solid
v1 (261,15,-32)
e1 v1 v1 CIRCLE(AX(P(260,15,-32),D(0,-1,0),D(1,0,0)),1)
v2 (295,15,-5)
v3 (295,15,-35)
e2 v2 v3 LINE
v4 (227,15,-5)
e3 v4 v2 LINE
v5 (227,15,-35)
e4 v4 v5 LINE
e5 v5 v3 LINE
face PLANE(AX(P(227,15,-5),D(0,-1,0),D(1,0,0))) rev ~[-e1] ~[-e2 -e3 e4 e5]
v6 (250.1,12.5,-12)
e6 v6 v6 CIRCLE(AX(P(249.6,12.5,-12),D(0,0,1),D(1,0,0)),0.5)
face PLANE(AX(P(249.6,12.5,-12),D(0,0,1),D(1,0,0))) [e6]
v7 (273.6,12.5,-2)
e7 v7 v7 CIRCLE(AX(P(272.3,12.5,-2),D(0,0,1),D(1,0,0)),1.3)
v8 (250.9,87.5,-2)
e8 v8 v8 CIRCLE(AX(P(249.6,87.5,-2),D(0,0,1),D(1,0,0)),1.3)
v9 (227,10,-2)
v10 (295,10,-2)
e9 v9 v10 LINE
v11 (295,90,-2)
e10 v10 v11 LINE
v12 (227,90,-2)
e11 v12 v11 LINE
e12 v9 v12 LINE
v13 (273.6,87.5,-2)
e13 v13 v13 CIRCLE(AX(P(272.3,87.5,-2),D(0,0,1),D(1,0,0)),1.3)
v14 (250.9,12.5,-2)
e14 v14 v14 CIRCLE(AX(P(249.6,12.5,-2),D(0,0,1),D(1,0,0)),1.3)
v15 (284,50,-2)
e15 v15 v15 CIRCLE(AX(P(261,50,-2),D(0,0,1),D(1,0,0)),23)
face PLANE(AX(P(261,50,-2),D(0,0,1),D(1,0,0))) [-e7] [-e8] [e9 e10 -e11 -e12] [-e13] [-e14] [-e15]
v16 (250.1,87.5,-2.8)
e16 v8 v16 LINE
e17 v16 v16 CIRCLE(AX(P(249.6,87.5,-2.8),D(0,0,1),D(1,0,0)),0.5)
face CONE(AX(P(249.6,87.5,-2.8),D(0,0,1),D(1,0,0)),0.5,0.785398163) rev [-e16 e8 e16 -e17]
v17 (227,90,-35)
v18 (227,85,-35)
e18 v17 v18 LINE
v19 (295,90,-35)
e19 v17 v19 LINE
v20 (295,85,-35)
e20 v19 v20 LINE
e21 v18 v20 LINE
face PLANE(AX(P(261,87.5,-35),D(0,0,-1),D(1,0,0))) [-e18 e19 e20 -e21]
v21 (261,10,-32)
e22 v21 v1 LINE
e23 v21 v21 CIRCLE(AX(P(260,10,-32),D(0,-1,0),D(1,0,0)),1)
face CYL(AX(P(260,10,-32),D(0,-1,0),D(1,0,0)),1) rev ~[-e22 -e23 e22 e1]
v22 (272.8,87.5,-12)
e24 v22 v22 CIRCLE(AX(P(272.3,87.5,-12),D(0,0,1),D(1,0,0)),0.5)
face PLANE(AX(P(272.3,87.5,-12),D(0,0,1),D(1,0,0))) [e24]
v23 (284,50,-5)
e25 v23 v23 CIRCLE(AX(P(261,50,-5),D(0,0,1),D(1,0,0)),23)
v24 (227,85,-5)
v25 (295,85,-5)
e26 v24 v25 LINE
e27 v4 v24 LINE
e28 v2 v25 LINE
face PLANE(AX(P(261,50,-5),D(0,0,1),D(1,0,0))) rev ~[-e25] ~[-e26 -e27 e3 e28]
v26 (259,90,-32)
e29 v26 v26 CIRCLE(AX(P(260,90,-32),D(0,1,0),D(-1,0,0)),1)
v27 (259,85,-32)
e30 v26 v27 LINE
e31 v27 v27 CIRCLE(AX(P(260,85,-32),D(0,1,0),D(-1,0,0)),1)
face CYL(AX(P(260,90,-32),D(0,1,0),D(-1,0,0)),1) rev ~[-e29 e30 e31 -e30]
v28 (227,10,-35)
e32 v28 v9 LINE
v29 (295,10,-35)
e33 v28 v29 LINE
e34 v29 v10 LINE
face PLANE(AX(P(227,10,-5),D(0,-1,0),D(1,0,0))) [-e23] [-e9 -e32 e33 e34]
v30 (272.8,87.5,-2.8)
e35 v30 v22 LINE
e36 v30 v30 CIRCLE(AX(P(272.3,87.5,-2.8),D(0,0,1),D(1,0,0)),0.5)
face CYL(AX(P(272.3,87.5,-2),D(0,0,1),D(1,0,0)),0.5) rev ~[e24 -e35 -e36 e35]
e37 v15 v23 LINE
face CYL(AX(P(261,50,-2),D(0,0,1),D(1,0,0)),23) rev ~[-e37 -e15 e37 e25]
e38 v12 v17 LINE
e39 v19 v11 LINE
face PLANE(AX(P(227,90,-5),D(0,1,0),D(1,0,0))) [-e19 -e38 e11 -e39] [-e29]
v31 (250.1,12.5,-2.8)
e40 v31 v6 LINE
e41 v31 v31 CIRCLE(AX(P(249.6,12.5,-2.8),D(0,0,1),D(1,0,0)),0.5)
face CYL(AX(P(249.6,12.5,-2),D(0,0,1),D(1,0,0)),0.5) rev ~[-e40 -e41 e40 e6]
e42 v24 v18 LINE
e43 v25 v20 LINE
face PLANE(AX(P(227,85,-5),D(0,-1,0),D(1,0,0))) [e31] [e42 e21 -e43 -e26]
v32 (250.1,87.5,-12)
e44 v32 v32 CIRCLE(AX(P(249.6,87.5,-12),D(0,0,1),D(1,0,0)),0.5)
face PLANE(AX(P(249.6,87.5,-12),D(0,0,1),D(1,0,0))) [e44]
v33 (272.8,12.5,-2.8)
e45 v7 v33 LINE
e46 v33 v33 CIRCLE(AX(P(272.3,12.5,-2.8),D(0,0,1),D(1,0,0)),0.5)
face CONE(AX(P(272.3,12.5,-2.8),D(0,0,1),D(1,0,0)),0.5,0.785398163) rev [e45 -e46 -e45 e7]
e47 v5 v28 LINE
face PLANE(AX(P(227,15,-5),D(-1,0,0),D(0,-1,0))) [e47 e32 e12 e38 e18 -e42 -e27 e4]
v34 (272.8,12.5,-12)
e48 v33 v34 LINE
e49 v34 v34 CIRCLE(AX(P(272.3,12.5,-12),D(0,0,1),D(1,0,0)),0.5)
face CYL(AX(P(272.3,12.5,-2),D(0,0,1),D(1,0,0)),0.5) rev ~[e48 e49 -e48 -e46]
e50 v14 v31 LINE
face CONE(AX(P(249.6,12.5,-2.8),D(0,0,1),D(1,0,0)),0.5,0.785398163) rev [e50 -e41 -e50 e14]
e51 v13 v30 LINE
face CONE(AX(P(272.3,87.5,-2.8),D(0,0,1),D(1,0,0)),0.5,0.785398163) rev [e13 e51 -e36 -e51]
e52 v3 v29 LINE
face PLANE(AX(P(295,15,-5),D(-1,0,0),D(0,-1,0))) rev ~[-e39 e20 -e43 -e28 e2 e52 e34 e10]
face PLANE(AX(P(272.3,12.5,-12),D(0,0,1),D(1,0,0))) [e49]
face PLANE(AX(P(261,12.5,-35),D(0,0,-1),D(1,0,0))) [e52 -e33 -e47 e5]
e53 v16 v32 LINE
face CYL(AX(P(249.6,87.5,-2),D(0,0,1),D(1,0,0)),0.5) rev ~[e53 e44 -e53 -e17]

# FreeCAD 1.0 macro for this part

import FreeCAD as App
import Part
import Sketcher
from FreeCAD import Vector


def edges_at(feature, points):
    """Names of the edges that pass closest to the given points."""
    edges = feature.Shape.Edges
    near = lambda p: min(range(len(edges)), key=lambda i: edges[i].distToShape(Part.Vertex(*p))[0])
    return sorted({f"Edge{near(p) + 1}" for p in points})


def add_polygon(sketch, points):
    """Adds a closed chain of lines whose ends are joined by coincident constraints."""
    first, n = sketch.GeometryCount, len(points)
    for a, b in zip(points, points[1:] + points[:1]):
        sketch.addGeometry(Part.LineSegment(App.Vector(*a, 0), App.Vector(*b, 0)), False)
    for i in range(n):
        sketch.addConstraint(Sketcher.Constraint("Coincident", first + i, 2, first + (i + 1) % n, 1))

doc = App.newDocument("Part")
body = doc.addObject("PartDesign::Body", "Body")

# Sketch on XY plane
sketch1 = body.newObject("Sketcher::SketchObject", "Sketch")
sketch1.AttachmentSupport = (doc.getObject("XY_Plane"), [""])
sketch1.MapMode = "FlatFace"
add_polygon(sketch1, [(0, 80), (0, 0), (68, 0), (68, 80)])  # lines 0-3
sketch1.addConstraint([
    Sketcher.Constraint("Vertical", 0),
    Sketcher.Constraint("Horizontal", 1),
    Sketcher.Constraint("Vertical", 2),
    Sketcher.Constraint("Horizontal", 3),
    Sketcher.Constraint("Coincident", 0, 2, -1, 1),
    Sketcher.Constraint("DistanceX", 1, 1, 1, 2, 68.0),
    Sketcher.Constraint("DistanceY", 0, 2, 0, 1, 80.0),
])
pad1 = body.newObject("PartDesign::Pad", "Pad")
pad1.Profile = sketch1
pad1.Length = 3

# Sketch on XY plane
sketch2 = body.newObject("Sketcher::SketchObject", "Sketch001")
sketch2.AttachmentSupport = (doc.getObject("XY_Plane"), [""])
sketch2.MapMode = "FlatFace"
sketch2.AttachmentOffset = App.Placement(Vector(0, 0, 3), App.Rotation())
sketch2.addGeometry(Part.Circle(Vector(34, 40, 0), Vector(0, 0, 1), 23), False)
sketch2.addConstraint([
    Sketcher.Constraint("Diameter", 0, 46.0),
    Sketcher.Constraint("DistanceX", -1, 1, 0, 3, 34.0),
    Sketcher.Constraint("DistanceY", -1, 1, 0, 3, 40.0),
])
pocket1 = body.newObject("PartDesign::Pocket", "Pocket")
pocket1.Profile = sketch2
pocket1.Length = 3

# Sketch on XY plane
sketch3 = body.newObject("Sketcher::SketchObject", "Sketch002")
sketch3.AttachmentSupport = (doc.getObject("XY_Plane"), [""])
sketch3.MapMode = "FlatFace"
add_polygon(sketch3, [(0, 0), (0, 5), (68, 5), (68, 0)])  # lines 0-3
add_polygon(sketch3, [(0, 75), (0, 80), (68, 80), (68, 75)])  # lines 4-7
sketch3.addConstraint([
    Sketcher.Constraint("Vertical", 0),
    Sketcher.Constraint("Horizontal", 1),
    Sketcher.Constraint("Vertical", 2),
    Sketcher.Constraint("Horizontal", 3),
    Sketcher.Constraint("Vertical", 4),
    Sketcher.Constraint("Horizontal", 5),
    Sketcher.Constraint("Vertical", 6),
    Sketcher.Constraint("Horizontal", 7),
    Sketcher.Constraint("Coincident", 3, 2, -1, 1),
    Sketcher.Constraint("PointOnObject", 4, 2, -2),
    Sketcher.Constraint("Vertical", 2, 2, 5, 2),
    Sketcher.Constraint("Equal", 2, 4),
    Sketcher.Constraint("DistanceX", 1, 1, 1, 2, 68.0),
    Sketcher.Constraint("DistanceY", 0, 1, 0, 2, 5.0),
    Sketcher.Constraint("DistanceY", -1, 1, 4, 2, 80.0),
])
pad2 = body.newObject("PartDesign::Pad", "Pad001")
pad2.Profile = sketch3
pad2.Length = 30
pad2.Reversed = True

# Sketch on XZ plane
sketch4 = body.newObject("Sketcher::SketchObject", "Sketch003")
sketch4.AttachmentSupport = (doc.getObject("XZ_Plane"), [""])
sketch4.MapMode = "FlatFace"
sketch4.addGeometry(Part.Circle(Vector(33, -27, 0), Vector(0, 0, 1), 1), False)
sketch4.addConstraint([
    Sketcher.Constraint("Diameter", 0, 2.0),
    Sketcher.Constraint("DistanceX", -1, 1, 0, 3, 33.0),
    Sketcher.Constraint("DistanceY", 0, 3, -1, 1, 27.0),
])
pocket2 = body.newObject("PartDesign::Pocket", "Pocket001")
pocket2.Profile = sketch4
pocket2.Length = 5

# Sketch on XZ plane
sketch5 = body.newObject("Sketcher::SketchObject", "Sketch004")
sketch5.AttachmentSupport = (doc.getObject("XZ_Plane"), [""])
sketch5.MapMode = "FlatFace"
sketch5.AttachmentOffset = App.Placement(Vector(0, 0, -80), App.Rotation())
sketch5.addGeometry(Part.Circle(Vector(33, -27, 0), Vector(0, 0, 1), 1), False)
sketch5.addConstraint([
    Sketcher.Constraint("Diameter", 0, 2.0),
    Sketcher.Constraint("DistanceX", -1, 1, 0, 3, 33.0),
    Sketcher.Constraint("DistanceY", 0, 3, -1, 1, 27.0),
])
pocket3 = body.newObject("PartDesign::Pocket", "Pocket002")
pocket3.Profile = sketch5
pocket3.Length = 5
pocket3.Reversed = True

# Sketch on XY plane
sketch6 = body.newObject("Sketcher::SketchObject", "Sketch005")
sketch6.AttachmentSupport = (doc.getObject("XY_Plane"), [""])
sketch6.MapMode = "FlatFace"
sketch6.AttachmentOffset = App.Placement(Vector(0, 0, 3), App.Rotation())
sketch6.addGeometry([
    Part.Circle(Vector(22.6, 2.5, 0), Vector(0, 0, 1), 0.5),
    Part.Circle(Vector(45.3, 2.5, 0), Vector(0, 0, 1), 0.5),
    Part.Circle(Vector(22.6, 77.5, 0), Vector(0, 0, 1), 0.5),
    Part.Circle(Vector(45.3, 77.5, 0), Vector(0, 0, 1), 0.5),
], False)
sketch6.addConstraint([
    Sketcher.Constraint("Equal", 0, 1),
    Sketcher.Constraint("Equal", 1, 2),
    Sketcher.Constraint("Equal", 2, 3),
    Sketcher.Constraint("Horizontal", 0, 3, 1, 3),
    Sketcher.Constraint("Horizontal", 2, 3, 3, 3),
    Sketcher.Constraint("Vertical", 0, 3, 2, 3),
    Sketcher.Constraint("Vertical", 1, 3, 3, 3),
    Sketcher.Constraint("Diameter", 0, 1.0),
    Sketcher.Constraint("DistanceY", 0, 3, 2, 3, 75.0),
    Sketcher.Constraint("DistanceX", -1, 1, 0, 3, 22.6),
    Sketcher.Constraint("DistanceY", -1, 1, 0, 3, 2.5),
    Sketcher.Constraint("DistanceX", -1, 1, 1, 3, 45.3),
])
pocket4 = body.newObject("PartDesign::Pocket", "Pocket003")
pocket4.Profile = sketch6
pocket4.Length = 10
doc.recompute()

chamfer = body.newObject("PartDesign::Chamfer", "Chamfer")
chamfer.Base = (pocket4, edges_at(pocket4, [
    (22.1, 2.5, 3),
    (44.8, 2.5, 3),
    (44.8, 77.5, 3),
    (22.1, 77.5, 3),
]))
chamfer.Size = 0.8
body2 = doc.addObject("PartDesign::Body", "Body001")
doc.recompute()

body.Placement = App.Placement(Vector(7, 10, -5), App.Rotation(Vector(0, 0, 1), 0))
boolean = body2.newObject("PartDesign::Boolean", "Boolean")
boolean.Type = "Fuse"
boolean.addObjects([body])
body3 = doc.addObject("PartDesign::Body", "Body002")
doc.recompute()

body2.Placement = App.Placement(Vector(3, 0, 0), App.Rotation(Vector(0, 0, 1), 0))
boolean2 = body3.newObject("PartDesign::Boolean", "Boolean001")
boolean2.Type = "Fuse"
boolean2.addObjects([body2])
body4 = doc.addObject("PartDesign::Body", "Body003")
doc.recompute()

body3.Placement = App.Placement(Vector(217, 0, 0), App.Rotation(Vector(0, 0, 1), 0))
boolean3 = body4.newObject("PartDesign::Boolean", "Boolean002")
boolean3.Type = "Fuse"
boolean3.addObjects([body3])

doc.recompute()
